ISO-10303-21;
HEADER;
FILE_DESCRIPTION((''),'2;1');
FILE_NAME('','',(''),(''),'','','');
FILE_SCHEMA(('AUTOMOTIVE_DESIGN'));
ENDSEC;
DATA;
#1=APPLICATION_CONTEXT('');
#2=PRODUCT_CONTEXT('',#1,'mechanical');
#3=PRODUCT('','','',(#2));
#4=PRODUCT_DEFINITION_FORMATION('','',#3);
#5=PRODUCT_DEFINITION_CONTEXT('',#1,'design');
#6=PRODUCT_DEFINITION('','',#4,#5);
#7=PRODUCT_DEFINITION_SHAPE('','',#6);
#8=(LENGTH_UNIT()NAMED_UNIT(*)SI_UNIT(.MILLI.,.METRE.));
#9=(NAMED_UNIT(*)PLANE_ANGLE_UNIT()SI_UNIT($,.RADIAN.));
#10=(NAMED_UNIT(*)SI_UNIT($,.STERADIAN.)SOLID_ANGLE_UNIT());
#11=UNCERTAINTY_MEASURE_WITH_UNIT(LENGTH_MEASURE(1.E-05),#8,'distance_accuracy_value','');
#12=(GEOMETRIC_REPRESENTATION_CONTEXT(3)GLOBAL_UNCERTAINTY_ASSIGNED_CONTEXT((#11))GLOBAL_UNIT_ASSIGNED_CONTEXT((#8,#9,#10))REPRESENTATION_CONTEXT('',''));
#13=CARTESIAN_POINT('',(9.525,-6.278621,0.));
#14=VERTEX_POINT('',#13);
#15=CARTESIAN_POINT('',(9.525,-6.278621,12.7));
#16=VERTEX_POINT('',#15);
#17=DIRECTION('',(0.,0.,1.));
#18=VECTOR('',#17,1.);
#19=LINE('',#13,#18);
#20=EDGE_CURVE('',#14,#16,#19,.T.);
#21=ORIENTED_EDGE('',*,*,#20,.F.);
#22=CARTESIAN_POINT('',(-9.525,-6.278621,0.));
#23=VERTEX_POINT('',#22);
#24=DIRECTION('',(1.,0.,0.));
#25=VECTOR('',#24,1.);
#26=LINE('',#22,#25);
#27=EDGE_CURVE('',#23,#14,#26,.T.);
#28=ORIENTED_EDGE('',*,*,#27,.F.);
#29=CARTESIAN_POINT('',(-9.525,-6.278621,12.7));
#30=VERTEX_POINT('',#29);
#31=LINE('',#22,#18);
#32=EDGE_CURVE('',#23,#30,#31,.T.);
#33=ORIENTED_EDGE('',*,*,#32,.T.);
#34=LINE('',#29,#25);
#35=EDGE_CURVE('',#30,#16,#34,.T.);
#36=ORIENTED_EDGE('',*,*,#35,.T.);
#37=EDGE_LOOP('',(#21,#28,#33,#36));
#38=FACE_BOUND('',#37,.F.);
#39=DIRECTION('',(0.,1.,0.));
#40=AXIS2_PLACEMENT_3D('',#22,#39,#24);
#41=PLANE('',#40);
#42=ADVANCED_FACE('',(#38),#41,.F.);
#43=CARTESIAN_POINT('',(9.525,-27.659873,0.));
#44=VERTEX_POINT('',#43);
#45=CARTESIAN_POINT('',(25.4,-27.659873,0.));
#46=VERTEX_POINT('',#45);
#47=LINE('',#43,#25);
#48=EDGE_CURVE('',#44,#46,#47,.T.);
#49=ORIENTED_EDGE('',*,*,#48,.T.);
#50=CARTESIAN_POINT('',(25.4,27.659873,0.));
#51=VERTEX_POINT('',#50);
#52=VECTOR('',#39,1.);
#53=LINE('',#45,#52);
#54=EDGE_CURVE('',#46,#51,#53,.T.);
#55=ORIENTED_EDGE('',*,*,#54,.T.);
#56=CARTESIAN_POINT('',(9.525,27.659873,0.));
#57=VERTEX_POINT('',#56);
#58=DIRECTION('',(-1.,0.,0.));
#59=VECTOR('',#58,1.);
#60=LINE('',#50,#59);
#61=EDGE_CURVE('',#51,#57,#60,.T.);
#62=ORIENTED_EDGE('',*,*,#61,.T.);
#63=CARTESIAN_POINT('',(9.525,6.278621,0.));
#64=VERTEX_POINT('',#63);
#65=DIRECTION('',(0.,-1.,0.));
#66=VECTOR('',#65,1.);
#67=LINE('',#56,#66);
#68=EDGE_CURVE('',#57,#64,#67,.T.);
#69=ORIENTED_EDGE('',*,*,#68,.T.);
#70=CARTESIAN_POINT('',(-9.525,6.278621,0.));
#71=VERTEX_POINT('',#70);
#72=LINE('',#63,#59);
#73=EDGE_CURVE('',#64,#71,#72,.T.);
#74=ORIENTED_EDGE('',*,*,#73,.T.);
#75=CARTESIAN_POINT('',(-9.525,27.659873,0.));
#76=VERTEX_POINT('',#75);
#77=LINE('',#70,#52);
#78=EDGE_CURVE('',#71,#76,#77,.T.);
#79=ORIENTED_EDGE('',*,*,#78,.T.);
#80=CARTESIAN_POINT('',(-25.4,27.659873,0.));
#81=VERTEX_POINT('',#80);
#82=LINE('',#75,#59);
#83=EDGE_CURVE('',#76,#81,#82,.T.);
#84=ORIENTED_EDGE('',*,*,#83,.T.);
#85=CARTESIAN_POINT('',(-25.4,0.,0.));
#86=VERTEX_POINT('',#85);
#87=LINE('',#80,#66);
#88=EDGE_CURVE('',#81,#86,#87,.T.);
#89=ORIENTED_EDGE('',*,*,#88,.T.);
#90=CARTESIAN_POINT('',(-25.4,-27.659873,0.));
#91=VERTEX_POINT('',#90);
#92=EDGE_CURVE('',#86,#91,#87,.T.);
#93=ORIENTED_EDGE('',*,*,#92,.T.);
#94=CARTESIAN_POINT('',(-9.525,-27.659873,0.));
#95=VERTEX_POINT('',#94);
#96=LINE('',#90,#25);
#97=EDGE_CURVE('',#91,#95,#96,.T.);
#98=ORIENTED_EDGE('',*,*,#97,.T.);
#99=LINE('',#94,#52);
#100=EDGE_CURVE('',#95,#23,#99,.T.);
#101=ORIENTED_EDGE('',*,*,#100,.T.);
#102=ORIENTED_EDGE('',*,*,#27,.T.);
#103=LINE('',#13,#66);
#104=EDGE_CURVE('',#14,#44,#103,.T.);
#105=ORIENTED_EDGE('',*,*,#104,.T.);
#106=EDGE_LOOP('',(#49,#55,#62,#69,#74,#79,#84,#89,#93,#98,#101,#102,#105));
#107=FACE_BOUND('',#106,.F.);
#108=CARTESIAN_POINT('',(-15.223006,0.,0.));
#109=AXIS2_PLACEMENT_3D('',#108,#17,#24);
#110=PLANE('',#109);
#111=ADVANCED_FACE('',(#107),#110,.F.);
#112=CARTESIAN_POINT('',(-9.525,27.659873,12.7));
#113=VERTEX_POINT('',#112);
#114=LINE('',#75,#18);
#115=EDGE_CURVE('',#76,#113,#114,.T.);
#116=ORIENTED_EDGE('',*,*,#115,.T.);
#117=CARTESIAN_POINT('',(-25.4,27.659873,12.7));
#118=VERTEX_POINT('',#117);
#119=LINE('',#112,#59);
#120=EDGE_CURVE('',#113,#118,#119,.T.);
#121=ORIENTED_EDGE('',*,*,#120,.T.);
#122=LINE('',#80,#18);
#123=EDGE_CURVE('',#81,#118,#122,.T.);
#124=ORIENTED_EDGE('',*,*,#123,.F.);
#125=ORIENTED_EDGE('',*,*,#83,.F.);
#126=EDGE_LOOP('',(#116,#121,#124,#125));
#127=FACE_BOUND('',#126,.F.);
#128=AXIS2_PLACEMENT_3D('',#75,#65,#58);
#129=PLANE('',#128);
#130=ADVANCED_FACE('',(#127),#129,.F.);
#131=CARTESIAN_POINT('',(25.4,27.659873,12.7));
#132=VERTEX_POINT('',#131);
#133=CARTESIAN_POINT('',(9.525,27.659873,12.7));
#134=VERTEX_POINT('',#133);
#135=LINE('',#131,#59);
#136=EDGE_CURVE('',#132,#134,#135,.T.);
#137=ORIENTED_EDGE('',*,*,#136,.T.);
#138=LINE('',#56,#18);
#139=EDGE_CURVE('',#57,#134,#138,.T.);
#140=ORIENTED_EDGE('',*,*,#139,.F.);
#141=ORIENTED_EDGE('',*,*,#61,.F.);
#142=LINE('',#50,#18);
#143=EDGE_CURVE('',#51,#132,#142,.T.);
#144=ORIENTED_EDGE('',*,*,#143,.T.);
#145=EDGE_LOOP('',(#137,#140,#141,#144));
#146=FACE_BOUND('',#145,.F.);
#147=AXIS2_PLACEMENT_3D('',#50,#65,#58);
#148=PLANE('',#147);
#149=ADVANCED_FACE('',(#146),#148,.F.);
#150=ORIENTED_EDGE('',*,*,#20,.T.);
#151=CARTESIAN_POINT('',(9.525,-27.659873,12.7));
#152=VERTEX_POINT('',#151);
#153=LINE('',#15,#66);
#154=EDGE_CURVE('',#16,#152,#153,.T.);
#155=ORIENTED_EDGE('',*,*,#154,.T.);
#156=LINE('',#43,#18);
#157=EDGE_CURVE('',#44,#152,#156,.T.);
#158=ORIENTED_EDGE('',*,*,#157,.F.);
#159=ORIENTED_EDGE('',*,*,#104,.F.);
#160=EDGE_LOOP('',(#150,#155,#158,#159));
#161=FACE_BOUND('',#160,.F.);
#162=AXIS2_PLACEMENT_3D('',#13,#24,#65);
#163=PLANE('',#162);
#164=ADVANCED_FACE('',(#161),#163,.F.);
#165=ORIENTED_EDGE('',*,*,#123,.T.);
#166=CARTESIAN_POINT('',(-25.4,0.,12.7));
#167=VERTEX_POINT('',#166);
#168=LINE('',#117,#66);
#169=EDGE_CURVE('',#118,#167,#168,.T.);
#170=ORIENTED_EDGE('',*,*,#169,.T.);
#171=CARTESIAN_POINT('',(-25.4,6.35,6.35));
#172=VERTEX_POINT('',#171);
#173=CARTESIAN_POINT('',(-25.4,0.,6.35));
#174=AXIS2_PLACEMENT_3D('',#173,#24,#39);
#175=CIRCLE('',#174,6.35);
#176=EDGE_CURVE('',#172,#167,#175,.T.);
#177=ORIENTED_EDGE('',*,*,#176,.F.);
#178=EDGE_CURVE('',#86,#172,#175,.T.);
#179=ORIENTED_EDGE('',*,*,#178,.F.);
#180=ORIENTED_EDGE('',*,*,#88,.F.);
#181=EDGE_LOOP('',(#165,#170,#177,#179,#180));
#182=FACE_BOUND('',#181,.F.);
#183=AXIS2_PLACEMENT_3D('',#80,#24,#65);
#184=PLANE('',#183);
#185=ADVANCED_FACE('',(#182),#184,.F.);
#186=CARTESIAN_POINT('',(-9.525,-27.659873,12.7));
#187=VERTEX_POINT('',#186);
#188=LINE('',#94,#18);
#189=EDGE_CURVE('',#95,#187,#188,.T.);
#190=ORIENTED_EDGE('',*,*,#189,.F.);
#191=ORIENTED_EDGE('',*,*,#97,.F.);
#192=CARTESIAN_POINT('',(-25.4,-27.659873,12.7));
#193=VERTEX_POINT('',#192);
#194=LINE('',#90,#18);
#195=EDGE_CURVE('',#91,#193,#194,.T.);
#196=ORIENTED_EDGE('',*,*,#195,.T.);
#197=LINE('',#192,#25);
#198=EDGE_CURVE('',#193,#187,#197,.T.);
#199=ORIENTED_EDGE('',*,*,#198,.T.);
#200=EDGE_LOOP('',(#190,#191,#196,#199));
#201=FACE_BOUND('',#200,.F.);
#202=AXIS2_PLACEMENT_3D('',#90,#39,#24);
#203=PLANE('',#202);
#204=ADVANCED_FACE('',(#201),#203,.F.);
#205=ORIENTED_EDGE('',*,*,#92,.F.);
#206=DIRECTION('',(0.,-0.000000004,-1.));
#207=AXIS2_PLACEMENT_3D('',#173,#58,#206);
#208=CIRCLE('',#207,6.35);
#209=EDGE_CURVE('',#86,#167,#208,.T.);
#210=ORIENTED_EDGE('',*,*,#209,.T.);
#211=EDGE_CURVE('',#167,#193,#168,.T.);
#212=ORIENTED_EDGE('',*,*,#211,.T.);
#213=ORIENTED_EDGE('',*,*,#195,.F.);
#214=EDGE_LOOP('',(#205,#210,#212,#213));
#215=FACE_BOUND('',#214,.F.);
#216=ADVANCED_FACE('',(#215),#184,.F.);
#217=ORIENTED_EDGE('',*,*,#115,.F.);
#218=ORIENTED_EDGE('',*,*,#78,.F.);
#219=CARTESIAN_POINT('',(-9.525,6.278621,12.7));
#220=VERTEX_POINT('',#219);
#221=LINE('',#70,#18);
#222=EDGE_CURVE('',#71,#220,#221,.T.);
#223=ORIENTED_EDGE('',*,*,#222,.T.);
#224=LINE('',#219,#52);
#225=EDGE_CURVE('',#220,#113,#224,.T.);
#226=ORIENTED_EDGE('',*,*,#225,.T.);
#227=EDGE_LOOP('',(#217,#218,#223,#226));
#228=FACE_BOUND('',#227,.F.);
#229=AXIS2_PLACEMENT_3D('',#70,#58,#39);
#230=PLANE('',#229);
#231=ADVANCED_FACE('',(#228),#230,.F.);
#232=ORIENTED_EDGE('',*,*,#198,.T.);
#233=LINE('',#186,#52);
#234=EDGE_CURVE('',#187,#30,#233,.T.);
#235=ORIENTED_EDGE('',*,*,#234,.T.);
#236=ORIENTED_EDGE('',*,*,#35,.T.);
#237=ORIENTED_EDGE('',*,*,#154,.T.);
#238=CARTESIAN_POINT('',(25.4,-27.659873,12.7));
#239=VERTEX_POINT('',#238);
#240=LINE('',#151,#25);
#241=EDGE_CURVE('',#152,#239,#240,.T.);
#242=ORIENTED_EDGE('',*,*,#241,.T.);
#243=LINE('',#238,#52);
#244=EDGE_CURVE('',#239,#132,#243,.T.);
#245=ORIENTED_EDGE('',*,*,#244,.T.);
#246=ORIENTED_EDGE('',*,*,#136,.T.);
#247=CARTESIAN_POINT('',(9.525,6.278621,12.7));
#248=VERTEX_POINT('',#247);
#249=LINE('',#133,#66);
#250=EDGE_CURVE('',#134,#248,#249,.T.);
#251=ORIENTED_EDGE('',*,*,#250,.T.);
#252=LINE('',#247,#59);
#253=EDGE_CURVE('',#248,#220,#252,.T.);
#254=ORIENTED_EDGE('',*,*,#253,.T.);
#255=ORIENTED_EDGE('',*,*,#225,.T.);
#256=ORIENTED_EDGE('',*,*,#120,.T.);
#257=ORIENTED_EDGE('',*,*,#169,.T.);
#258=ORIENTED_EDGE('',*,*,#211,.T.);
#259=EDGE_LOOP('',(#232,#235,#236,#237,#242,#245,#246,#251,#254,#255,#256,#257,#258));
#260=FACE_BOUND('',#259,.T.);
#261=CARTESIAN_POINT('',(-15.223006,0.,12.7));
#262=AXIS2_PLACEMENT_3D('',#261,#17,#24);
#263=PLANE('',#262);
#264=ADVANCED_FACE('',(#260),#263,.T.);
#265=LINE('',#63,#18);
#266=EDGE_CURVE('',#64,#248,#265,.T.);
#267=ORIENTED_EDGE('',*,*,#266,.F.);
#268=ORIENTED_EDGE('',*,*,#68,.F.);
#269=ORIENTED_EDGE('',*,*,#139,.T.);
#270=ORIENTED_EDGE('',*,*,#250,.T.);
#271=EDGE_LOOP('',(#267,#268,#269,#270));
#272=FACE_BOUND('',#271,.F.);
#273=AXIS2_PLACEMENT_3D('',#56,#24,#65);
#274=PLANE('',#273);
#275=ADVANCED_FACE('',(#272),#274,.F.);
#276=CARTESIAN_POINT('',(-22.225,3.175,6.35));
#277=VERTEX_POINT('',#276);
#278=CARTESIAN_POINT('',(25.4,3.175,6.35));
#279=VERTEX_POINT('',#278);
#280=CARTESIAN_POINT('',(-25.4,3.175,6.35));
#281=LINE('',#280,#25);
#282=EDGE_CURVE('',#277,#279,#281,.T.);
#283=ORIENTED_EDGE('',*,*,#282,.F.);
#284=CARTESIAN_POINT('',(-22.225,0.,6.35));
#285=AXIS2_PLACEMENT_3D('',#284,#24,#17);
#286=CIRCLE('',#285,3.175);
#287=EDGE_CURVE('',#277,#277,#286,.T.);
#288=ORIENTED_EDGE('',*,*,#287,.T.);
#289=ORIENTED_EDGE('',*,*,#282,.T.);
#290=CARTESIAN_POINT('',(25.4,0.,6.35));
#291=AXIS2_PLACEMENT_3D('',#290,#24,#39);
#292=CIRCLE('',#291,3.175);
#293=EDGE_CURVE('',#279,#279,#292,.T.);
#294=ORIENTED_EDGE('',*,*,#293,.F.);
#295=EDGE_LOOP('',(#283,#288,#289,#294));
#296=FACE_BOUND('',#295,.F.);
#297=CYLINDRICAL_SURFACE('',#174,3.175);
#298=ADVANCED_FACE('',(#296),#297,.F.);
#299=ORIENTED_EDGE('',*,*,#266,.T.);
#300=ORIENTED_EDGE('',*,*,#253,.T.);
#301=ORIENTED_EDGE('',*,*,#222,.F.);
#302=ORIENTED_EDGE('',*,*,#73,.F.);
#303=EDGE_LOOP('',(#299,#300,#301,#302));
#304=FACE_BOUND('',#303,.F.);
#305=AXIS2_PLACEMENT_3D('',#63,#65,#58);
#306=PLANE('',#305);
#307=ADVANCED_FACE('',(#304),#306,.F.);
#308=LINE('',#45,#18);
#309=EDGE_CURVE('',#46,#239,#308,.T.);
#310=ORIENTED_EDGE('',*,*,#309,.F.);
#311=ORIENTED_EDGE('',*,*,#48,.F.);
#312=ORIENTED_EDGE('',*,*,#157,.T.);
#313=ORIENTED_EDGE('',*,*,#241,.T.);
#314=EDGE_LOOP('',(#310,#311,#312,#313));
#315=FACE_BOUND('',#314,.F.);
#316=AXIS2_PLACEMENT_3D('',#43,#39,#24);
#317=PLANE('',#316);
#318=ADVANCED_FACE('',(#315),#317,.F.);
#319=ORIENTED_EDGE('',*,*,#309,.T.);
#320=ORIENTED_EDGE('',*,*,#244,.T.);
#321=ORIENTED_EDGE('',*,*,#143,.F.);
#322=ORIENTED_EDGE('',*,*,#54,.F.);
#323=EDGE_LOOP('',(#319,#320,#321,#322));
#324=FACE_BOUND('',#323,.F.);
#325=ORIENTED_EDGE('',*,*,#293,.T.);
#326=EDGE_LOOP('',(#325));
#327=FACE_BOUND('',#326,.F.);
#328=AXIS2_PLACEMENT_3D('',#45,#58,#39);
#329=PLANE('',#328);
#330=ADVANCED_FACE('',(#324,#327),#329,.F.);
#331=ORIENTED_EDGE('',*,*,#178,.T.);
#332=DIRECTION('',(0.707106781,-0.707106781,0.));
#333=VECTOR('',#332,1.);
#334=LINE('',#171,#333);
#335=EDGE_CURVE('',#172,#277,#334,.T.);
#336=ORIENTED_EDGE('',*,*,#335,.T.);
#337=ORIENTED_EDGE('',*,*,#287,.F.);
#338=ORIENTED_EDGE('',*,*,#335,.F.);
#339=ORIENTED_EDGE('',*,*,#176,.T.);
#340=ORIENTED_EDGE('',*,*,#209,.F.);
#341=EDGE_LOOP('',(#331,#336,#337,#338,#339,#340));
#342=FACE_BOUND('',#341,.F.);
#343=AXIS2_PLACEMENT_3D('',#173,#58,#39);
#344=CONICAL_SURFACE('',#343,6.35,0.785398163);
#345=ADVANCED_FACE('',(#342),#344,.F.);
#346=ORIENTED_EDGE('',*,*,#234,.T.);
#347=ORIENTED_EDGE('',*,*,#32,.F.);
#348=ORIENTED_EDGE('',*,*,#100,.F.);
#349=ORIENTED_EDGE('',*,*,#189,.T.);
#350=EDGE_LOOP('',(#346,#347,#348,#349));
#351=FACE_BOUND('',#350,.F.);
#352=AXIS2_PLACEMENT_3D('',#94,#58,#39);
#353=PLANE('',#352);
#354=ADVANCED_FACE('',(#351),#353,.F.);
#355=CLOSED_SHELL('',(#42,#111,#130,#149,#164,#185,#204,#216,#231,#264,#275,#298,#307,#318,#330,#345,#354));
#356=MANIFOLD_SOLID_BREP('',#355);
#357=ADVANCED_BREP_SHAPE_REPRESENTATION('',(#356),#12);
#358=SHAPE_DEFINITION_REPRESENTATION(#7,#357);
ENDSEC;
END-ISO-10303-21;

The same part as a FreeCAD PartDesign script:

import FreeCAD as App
import Part
import Sketcher

V = App.Vector
Q = App.Units.Quantity


def add_polygon(sketch, points):
    """Adds a closed chain of lines whose ends are joined by coincident constraints."""
    first, n = sketch.GeometryCount, len(points)
    for a, b in zip(points, points[1:] + points[:1]):
        sketch.addGeometry(Part.LineSegment(App.Vector(*a, 0), App.Vector(*b, 0)), False)
    for i in range(n):
        sketch.addConstraint(Sketcher.Constraint("Coincident", first + i, 2, first + (i + 1) % n, 1))

doc = App.newDocument("Part")
body = doc.addObject("PartDesign::Body", "Body")

# Sketch on XY plane
sketch1 = doc.addObject("Sketcher::SketchObject", "Sketch")
body.addObject(sketch1)
sketch1.AttachmentSupport = (doc.XY_Plane, [""])
sketch1.MapMode = "FlatFace"
add_polygon(sketch1, [(-9.525, 27.659873), (-25.4, 27.659873), (-25.4, -27.659873), (-9.525, -27.659873), (-9.525, -6.278621), (9.525, -6.278621), (9.525, -27.659873), (25.4, -27.659873), (25.4, 27.659873), (9.525, 27.659873), (9.525, 6.278621), (-9.525, 6.278621)])  # lines 0-11
sketch1.addConstraint([
    Sketcher.Constraint("Horizontal", 0),
    Sketcher.Constraint("Vertical", 1),
    Sketcher.Constraint("Horizontal", 2),
    Sketcher.Constraint("Vertical", 3),
    Sketcher.Constraint("Horizontal", 4),
    Sketcher.Constraint("Vertical", 5),
    Sketcher.Constraint("Horizontal", 6),
    Sketcher.Constraint("Vertical", 7),
    Sketcher.Constraint("Horizontal", 8),
    Sketcher.Constraint("Vertical", 9),
    Sketcher.Constraint("Horizontal", 10),
    Sketcher.Constraint("Vertical", 11),
    Sketcher.Constraint("Symmetric", 0, 2, 6, 2, -1, 1),
    Sketcher.Constraint("Symmetric", 2, 2, 8, 2, -1, 1),
    Sketcher.Constraint("Symmetric", 4, 2, 10, 2, -1, 1),
    Sketcher.Constraint("Symmetric", 2, 2, 5, 2, -2),
    Sketcher.Constraint("DistanceX", 0, 2, -1, 1, Q("1 in")),
    Sketcher.Constraint("DistanceX", 4, 1, 4, 2, Q("0.75 in")),
    Sketcher.Constraint("DistanceY", 3, 1, 3, 2, 21.381252),
    Sketcher.Constraint("DistanceY", 1, 2, 1, 1, 55.319746),
])
pad1 = doc.addObject("PartDesign::Pad", "Pad")
body.addObject(pad1)
pad1.Profile = sketch1
pad1.Length = Q("0.5 in")

# Sketch on YZ plane
sketch2 = doc.addObject("Sketcher::SketchObject", "Sketch001")
body.addObject(sketch2)
sketch2.AttachmentSupport = (doc.YZ_Plane, [""])
sketch2.MapMode = "FlatFace"
sketch2.AttachmentOffset = App.Placement(V(0, 0, -1 * 25.4), App.Rotation())
sketch2.addGeometry(Part.Circle(V(0, 6.35, 0), V(0, 0, 1), 3.175), False)
sketch2.addConstraint([
    Sketcher.Constraint("PointOnObject", 0, 3, -2),
    Sketcher.Constraint("Diameter", 0, Q("0.25 in")),
    Sketcher.Constraint("DistanceY", -1, 1, 0, 3, Q("0.25 in")),
])
doc.recompute()
hole = doc.addObject("PartDesign::Hole", "Hole")
body.addObject(hole)
hole.Profile = sketch2
hole.ThreadType = "None"
hole.Diameter = Q("0.25 in")
hole.DepthType = "ThroughAll"
hole.HoleCutType = "Countersink"
hole.HoleCutDiameter = Q("0.5 in")
hole.HoleCutCountersinkAngle = 90
hole.Reversed = True

doc.recompute()
